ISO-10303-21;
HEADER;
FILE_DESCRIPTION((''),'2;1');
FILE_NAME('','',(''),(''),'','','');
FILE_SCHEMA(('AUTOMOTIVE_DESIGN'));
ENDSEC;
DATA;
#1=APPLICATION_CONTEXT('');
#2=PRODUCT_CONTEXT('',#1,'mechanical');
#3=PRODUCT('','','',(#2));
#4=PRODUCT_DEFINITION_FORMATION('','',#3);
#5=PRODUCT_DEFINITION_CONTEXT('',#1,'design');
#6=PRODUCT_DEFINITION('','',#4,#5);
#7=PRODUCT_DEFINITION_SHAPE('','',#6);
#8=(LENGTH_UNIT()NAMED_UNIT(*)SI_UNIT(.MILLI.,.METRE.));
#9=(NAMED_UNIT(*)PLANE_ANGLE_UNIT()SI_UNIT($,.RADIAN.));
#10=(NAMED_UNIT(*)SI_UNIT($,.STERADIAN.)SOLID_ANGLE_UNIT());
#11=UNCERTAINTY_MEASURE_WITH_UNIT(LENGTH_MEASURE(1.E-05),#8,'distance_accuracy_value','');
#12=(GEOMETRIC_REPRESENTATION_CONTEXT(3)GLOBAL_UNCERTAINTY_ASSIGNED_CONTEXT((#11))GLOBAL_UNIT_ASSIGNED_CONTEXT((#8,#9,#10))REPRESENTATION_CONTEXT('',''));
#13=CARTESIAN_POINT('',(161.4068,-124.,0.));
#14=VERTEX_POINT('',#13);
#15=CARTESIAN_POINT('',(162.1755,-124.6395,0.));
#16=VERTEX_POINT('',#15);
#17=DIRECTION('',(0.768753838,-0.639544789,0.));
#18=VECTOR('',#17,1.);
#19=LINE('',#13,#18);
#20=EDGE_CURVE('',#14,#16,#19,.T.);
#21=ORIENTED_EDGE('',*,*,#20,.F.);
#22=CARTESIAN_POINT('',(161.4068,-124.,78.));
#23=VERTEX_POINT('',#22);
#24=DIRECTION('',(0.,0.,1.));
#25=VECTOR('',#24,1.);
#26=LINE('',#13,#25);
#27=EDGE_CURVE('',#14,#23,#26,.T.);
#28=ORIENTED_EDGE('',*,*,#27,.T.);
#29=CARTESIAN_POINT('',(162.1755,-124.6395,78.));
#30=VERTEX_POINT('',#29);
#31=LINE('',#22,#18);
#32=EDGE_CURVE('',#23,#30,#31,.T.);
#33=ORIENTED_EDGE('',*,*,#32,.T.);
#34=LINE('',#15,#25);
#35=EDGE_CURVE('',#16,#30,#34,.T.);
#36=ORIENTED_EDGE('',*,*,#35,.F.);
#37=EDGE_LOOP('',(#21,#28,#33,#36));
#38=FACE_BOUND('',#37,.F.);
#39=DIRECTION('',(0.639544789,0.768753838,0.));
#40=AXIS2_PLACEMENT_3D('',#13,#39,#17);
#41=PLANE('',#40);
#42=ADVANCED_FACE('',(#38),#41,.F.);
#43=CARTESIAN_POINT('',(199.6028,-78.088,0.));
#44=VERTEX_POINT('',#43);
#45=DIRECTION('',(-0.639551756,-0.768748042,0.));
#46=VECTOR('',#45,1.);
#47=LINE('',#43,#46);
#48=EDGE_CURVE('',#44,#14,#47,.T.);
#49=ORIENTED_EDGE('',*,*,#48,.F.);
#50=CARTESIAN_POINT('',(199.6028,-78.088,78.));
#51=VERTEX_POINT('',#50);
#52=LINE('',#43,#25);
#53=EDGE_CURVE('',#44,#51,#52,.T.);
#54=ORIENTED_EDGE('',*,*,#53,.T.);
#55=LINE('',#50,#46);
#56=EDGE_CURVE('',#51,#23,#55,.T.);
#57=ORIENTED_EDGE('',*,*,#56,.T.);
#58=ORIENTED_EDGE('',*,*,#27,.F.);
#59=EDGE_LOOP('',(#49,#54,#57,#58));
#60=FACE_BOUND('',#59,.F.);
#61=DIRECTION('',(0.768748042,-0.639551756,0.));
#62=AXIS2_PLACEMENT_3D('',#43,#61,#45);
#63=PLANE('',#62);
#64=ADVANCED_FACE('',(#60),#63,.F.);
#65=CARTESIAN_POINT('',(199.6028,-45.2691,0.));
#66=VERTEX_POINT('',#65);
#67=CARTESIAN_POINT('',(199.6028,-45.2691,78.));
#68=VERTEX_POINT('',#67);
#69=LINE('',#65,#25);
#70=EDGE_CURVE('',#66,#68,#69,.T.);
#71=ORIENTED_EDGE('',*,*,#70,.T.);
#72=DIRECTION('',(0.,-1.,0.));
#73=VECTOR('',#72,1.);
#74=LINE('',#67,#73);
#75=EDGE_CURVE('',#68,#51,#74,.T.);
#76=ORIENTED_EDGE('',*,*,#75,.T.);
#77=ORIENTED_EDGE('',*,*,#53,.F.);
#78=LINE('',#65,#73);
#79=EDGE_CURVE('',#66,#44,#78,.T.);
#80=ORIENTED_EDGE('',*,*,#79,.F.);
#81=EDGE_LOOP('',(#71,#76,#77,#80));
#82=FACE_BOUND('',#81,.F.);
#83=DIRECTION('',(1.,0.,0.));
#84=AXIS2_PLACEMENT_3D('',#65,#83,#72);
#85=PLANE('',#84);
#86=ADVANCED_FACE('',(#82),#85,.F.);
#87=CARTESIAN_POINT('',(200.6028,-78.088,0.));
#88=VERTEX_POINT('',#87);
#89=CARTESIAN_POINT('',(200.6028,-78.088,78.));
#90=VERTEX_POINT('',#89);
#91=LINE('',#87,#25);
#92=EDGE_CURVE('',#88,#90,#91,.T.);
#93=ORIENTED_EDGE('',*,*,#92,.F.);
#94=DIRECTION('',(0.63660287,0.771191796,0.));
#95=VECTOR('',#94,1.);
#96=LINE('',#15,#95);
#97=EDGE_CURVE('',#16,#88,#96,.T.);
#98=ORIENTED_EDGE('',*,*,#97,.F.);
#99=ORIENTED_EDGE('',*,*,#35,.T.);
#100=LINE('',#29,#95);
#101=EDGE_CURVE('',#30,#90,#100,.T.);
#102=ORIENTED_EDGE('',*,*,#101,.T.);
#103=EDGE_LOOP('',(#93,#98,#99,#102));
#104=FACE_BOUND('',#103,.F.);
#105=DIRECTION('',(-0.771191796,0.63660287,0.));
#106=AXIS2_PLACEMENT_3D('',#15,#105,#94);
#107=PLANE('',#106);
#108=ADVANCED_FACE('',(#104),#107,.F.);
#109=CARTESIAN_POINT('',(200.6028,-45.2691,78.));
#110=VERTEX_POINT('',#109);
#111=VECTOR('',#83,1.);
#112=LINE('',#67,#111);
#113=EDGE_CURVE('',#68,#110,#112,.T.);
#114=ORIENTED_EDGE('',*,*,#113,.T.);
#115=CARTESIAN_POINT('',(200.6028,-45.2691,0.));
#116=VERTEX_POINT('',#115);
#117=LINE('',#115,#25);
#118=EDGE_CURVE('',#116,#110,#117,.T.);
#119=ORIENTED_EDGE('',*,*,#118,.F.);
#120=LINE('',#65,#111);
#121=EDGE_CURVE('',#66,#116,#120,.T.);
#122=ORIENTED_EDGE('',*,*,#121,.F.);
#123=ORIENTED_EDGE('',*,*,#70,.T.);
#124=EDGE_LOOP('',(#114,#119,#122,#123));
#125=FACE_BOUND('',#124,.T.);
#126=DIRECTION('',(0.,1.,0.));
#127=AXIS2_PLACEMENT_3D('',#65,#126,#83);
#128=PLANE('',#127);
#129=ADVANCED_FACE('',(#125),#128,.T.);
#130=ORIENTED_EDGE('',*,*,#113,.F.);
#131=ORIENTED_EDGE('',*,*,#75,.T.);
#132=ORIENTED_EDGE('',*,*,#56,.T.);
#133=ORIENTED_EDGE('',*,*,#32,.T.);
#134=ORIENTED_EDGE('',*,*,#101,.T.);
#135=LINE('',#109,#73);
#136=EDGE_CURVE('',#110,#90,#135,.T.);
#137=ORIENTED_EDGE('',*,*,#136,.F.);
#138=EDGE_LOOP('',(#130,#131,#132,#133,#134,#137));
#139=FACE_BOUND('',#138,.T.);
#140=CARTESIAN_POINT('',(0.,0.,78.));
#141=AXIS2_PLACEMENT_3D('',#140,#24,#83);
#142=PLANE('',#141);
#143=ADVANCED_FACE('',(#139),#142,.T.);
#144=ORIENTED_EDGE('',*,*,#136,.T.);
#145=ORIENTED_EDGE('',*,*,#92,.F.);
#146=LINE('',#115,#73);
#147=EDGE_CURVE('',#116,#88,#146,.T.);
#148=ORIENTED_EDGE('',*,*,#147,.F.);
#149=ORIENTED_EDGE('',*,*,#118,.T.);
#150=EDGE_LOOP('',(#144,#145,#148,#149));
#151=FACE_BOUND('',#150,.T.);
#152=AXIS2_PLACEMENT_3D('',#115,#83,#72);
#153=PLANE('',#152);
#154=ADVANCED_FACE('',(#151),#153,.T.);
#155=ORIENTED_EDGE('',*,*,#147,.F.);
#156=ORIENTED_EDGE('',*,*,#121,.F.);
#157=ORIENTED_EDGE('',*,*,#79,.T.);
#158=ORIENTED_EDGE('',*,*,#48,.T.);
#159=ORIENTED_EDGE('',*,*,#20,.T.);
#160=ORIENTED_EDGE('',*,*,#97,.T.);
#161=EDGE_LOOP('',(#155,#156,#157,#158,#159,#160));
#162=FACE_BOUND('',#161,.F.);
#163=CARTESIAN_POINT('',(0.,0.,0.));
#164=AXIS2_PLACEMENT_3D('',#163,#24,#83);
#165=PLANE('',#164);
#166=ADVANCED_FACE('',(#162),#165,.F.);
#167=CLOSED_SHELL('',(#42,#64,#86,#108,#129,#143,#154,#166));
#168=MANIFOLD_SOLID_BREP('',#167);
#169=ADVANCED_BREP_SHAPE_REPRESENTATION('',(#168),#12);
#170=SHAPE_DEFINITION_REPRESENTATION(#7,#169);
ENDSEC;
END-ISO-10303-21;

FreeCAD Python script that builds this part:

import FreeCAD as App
import Part
import Sketcher
from FreeCAD import Vector
Q = App.Units.Quantity


def add_polygon(sketch, points):
    """Adds a closed chain of lines whose ends are joined by coincident constraints."""
    first, n = sketch.GeometryCount, len(points)
    for a, b in zip(points, points[1:] + points[:1]):
        sketch.addGeometry(Part.LineSegment(App.Vector(*a, 0), App.Vector(*b, 0)), False)
    for i in range(n):
        sketch.addConstraint(Sketcher.Constraint("Coincident", first + i, 2, first + (i + 1) % n, 1))

doc = App.newDocument("Part")
params = doc.addObject("Spreadsheet::Sheet", "Params")
for row, (alias, value) in enumerate([
    ("sketch1_width", "1 mm"),
    ("sketch1_length", "1 mm"),
    ("pad1_length", "78 mm"),
], start=1):
    params.set(f"A{row}", alias)
    params.set(f"B{row}", "=" + value)
    params.setAlias(f"B{row}", alias)

body = doc.addObject("PartDesign::Body", "Body")

# Sketch on XY plane
sketch1 = doc.addObject("Sketcher::SketchObject", "Sketch")
body.addObject(sketch1)
sketch1.AttachmentSupport = (doc.XY_Plane, [""])
sketch1.MapMode = "FlatFace"
add_polygon(sketch1, [(200.6028, -45.2691), (199.6028, -45.2691), (199.6028, -78.088), (161.4068, -124), (162.1755, -124.6395), (200.6028, -78.088)])  # lines 0-5
sketch1.addConstraint([
    Sketcher.Constraint("Horizontal", 0),
    Sketcher.Constraint("Vertical", 1),
    Sketcher.Constraint("Vertical", 5),
    Sketcher.Constraint("Perpendicular", 2, 3),
    Sketcher.Constraint("Horizontal", 1, 2, 4, 2),
    Sketcher.Constraint("DistanceX", 0, 2, 0, 1, Q("1 mm")),
    Sketcher.Constraint("Distance", 3, Q("1 mm")),
    Sketcher.Constraint("DistanceY", 1, 2, 1, 1, Q("32.819 mm")),
    Sketcher.Constraint("Distance", 4, Q("60.363 mm")),
    Sketcher.Constraint("DistanceY", 2, 2, -1, 1, Q("124 mm")),
    Sketcher.Constraint("Angle", 4, Q("50.461 deg")),
    Sketcher.Constraint("DistanceX", -1, 1, 0, 2, Q("199.6028 mm")),
])
sketch1.setExpression("Constraints[11]", "Params.sketch1_width")
sketch1.setExpression("Constraints[12]", "Params.sketch1_length")
pad1 = doc.addObject("PartDesign::Pad", "Pad")
body.addObject(pad1)
pad1.Profile = sketch1
pad1.setExpression("Length", "Params.pad1_length")

doc.recompute()
